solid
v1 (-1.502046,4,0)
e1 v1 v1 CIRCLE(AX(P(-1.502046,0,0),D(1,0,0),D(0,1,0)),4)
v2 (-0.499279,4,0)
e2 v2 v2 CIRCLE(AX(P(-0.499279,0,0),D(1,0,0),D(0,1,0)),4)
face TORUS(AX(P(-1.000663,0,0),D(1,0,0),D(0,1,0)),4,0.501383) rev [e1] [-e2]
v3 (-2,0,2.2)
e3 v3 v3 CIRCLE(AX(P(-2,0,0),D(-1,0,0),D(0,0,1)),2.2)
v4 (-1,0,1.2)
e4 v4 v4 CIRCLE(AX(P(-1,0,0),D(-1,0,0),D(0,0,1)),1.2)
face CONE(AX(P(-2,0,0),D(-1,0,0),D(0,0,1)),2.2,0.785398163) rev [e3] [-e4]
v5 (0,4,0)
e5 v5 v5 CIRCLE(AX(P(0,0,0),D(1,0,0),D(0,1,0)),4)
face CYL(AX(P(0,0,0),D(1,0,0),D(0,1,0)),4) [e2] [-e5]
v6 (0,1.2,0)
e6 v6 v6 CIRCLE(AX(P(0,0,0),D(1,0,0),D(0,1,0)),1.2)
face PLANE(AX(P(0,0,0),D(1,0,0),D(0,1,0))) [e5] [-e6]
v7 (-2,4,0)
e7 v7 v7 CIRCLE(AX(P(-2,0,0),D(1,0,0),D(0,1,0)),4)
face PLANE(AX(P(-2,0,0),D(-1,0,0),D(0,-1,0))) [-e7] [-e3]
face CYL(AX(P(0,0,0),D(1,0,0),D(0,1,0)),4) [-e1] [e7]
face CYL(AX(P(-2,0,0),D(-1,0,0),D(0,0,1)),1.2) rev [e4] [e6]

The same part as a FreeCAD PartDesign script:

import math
import FreeCAD as App
import Part
import Sketcher
from FreeCAD import Vector
Q = App.Units.Quantity

doc = App.newDocument("Part")
body = doc.addObject("PartDesign::Body", "Body")

# Sketch on XY plane
sketch1 = body.newObject("Sketcher::SketchObject", "Sketch")
sketch1.AttachmentSupport = (doc.getObject("XY_Plane"), [""])
sketch1.MapMode = "FlatFace"
sketch1.addGeometry([
    Part.LineSegment(Vector(0, 0, 0), Vector(0, 4, 0)),  # 0
    Part.LineSegment(Vector(0, 4, 0), Vector(-0.499279, 4, 0)),  # 1
    Part.ArcOfCircle(Part.Circle(Vector(-1.000663, 4, 0), Vector(0, 0, 1), 0.501383), math.radians(180), math.radians(360)),  # 2
    Part.LineSegment(Vector(-1.502046, 4, 0), Vector(-2, 4, 0)),  # 3
    Part.LineSegment(Vector(-2, 4, 0), Vector(-2, 0, 0)),  # 4
    Part.LineSegment(Vector(-2, 0, 0), Vector(0, 0, 0)),  # 5
], False)
sketch1.addConstraint([
    Sketcher.Constraint("Coincident", 0, 2, 1, 1),
    Sketcher.Constraint("Coincident", 1, 2, 2, 2),
    Sketcher.Constraint("Coincident", 2, 1, 3, 1),
    Sketcher.Constraint("Coincident", 3, 2, 4, 1),
    Sketcher.Constraint("Coincident", 4, 2, 5, 1),
    Sketcher.Constraint("Coincident", 5, 2, 0, 1),
    Sketcher.Constraint("Vertical", 0),
    Sketcher.Constraint("Horizontal", 1),
    Sketcher.Constraint("Horizontal", 3),
    Sketcher.Constraint("Vertical", 4),
    Sketcher.Constraint("Horizontal", 5),
    Sketcher.Constraint("Coincident", 5, 2, -1, 1),
    Sketcher.Constraint("Horizontal", 2, 3, 0, 2),
    Sketcher.Constraint("Horizontal", 1, 2, 2, 1),
    Sketcher.Constraint("DistanceX", 5, 1, 5, 2, Q("2 mm")),
    Sketcher.Constraint("DistanceY", 0, 1, 0, 2, Q("4 mm")),
    Sketcher.Constraint("Radius", 2, Q("0.501383 mm")),
    Sketcher.Constraint("DistanceX", 1, 2, 1, 1, Q("0.499279 mm")),
])
revolution = body.newObject("PartDesign::Revolution", "Revolution")
revolution.Profile = sketch1
revolution.ReferenceAxis = (sketch1, ["H_Axis"])
revolution.Angle = 360

# Sketch on YZ plane
sketch2 = body.newObject("Sketcher::SketchObject", "Sketch001")
sketch2.AttachmentSupport = (doc.getObject("YZ_Plane"), [""])
sketch2.MapMode = "FlatFace"
sketch2.AttachmentOffset = App.Placement(Vector(0, 0, -2), App.Rotation())
sketch2.addGeometry(Part.Circle(Vector(0, 0, 0), Vector(0, 0, 1), 1.2), False)
sketch2.addConstraint([
    Sketcher.Constraint("Coincident", 0, 3, -1, 1),
    Sketcher.Constraint("Diameter", 0, Q("2.4 mm")),
])
doc.recompute()
hole = body.newObject("PartDesign::Hole", "Hole")
hole.Profile = sketch2
hole.ThreadType = "None"
hole.Diameter = 2.4
hole.DepthType = "Dimension"
hole.Depth = 5
hole.DrillPoint = "Angled"
hole.DrillPointAngle = 118
hole.HoleCutType = "Countersink"
hole.HoleCutDiameter = 4.4
hole.HoleCutCountersinkAngle = 90
hole.Reversed = True

doc.recompute()
